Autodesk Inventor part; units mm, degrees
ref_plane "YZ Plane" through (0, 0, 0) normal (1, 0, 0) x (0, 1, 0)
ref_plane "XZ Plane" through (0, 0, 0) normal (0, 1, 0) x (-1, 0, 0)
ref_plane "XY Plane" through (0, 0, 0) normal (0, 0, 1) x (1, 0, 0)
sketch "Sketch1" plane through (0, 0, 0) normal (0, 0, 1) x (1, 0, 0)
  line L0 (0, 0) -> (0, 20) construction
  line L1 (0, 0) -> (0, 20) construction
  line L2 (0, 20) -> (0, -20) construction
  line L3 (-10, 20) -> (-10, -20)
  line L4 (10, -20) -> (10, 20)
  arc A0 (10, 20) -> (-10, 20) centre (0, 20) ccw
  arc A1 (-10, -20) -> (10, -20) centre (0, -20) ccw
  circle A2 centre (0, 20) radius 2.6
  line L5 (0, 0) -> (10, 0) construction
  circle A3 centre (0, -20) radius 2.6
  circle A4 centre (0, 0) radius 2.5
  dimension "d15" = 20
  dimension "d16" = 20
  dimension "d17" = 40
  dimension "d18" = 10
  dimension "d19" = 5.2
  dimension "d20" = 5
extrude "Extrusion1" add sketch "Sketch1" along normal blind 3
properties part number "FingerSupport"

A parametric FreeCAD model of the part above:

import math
import FreeCAD as App
import Part
import Sketcher
Q = App.Units.Quantity

doc = App.newDocument("Part")
body = doc.addObject("PartDesign::Body", "Body")

# Sketch on XY plane
sketch1 = body.newObject("Sketcher::SketchObject", "Sketch")
sketch1.AttachmentSupport = (doc.getObject("XY_Plane"), [""])
sketch1.MapMode = "FlatFace"
sketch1.addGeometry([
    Part.ArcOfCircle(Part.Circle(App.Vector(0, 20, 0), App.Vector(0, 0, 1), 10), math.radians(0), math.radians(180)),  # 0
    Part.LineSegment(App.Vector(-10, 20, 0), App.Vector(-10, -20, 0)),  # 1
    Part.ArcOfCircle(Part.Circle(App.Vector(0, -20, 0), App.Vector(0, 0, 1), 10), math.radians(180), math.radians(360)),  # 2
    Part.LineSegment(App.Vector(10, -20, 0), App.Vector(10, 20, 0)),  # 3
    Part.Circle(App.Vector(0, -20, 0), App.Vector(0, 0, 1), 2.6),  # 4
    Part.Circle(App.Vector(0, 0, 0), App.Vector(0, 0, 1), 2.5),  # 5
    Part.Circle(App.Vector(0, 20, 0), App.Vector(0, 0, 1), 2.6),  # 6
], False)
sketch1.addConstraint([
    Sketcher.Constraint("Tangent", 0, 2, 1, 1),
    Sketcher.Constraint("Tangent", 1, 2, 2, 1),
    Sketcher.Constraint("Tangent", 2, 2, 3, 1),
    Sketcher.Constraint("Tangent", 3, 2, 0, 1),
    Sketcher.Constraint("Vertical", 1),
    Sketcher.Constraint("Vertical", 3),
    Sketcher.Constraint("Coincident", 5, 3, -1, 1),
    Sketcher.Constraint("Coincident", 4, 3, 2, 3),
    Sketcher.Constraint("Coincident", 6, 3, 0, 3),
    Sketcher.Constraint("Equal", 4, 6),
    Sketcher.Constraint("Symmetric", 0, 3, 2, 3, -1, 1),
    Sketcher.Constraint("Diameter", 5, Q("5 mm")),
    Sketcher.Constraint("Radius", 0, Q("10 mm")),
    Sketcher.Constraint("Diameter", 4, Q("5.2 mm")),
    Sketcher.Constraint("DistanceY", 1, 2, 1, 1, Q("40 mm")),
])
pad1 = body.newObject("PartDesign::Pad", "Pad")
pad1.Profile = sketch1
pad1.Length = 3

doc.recompute()
